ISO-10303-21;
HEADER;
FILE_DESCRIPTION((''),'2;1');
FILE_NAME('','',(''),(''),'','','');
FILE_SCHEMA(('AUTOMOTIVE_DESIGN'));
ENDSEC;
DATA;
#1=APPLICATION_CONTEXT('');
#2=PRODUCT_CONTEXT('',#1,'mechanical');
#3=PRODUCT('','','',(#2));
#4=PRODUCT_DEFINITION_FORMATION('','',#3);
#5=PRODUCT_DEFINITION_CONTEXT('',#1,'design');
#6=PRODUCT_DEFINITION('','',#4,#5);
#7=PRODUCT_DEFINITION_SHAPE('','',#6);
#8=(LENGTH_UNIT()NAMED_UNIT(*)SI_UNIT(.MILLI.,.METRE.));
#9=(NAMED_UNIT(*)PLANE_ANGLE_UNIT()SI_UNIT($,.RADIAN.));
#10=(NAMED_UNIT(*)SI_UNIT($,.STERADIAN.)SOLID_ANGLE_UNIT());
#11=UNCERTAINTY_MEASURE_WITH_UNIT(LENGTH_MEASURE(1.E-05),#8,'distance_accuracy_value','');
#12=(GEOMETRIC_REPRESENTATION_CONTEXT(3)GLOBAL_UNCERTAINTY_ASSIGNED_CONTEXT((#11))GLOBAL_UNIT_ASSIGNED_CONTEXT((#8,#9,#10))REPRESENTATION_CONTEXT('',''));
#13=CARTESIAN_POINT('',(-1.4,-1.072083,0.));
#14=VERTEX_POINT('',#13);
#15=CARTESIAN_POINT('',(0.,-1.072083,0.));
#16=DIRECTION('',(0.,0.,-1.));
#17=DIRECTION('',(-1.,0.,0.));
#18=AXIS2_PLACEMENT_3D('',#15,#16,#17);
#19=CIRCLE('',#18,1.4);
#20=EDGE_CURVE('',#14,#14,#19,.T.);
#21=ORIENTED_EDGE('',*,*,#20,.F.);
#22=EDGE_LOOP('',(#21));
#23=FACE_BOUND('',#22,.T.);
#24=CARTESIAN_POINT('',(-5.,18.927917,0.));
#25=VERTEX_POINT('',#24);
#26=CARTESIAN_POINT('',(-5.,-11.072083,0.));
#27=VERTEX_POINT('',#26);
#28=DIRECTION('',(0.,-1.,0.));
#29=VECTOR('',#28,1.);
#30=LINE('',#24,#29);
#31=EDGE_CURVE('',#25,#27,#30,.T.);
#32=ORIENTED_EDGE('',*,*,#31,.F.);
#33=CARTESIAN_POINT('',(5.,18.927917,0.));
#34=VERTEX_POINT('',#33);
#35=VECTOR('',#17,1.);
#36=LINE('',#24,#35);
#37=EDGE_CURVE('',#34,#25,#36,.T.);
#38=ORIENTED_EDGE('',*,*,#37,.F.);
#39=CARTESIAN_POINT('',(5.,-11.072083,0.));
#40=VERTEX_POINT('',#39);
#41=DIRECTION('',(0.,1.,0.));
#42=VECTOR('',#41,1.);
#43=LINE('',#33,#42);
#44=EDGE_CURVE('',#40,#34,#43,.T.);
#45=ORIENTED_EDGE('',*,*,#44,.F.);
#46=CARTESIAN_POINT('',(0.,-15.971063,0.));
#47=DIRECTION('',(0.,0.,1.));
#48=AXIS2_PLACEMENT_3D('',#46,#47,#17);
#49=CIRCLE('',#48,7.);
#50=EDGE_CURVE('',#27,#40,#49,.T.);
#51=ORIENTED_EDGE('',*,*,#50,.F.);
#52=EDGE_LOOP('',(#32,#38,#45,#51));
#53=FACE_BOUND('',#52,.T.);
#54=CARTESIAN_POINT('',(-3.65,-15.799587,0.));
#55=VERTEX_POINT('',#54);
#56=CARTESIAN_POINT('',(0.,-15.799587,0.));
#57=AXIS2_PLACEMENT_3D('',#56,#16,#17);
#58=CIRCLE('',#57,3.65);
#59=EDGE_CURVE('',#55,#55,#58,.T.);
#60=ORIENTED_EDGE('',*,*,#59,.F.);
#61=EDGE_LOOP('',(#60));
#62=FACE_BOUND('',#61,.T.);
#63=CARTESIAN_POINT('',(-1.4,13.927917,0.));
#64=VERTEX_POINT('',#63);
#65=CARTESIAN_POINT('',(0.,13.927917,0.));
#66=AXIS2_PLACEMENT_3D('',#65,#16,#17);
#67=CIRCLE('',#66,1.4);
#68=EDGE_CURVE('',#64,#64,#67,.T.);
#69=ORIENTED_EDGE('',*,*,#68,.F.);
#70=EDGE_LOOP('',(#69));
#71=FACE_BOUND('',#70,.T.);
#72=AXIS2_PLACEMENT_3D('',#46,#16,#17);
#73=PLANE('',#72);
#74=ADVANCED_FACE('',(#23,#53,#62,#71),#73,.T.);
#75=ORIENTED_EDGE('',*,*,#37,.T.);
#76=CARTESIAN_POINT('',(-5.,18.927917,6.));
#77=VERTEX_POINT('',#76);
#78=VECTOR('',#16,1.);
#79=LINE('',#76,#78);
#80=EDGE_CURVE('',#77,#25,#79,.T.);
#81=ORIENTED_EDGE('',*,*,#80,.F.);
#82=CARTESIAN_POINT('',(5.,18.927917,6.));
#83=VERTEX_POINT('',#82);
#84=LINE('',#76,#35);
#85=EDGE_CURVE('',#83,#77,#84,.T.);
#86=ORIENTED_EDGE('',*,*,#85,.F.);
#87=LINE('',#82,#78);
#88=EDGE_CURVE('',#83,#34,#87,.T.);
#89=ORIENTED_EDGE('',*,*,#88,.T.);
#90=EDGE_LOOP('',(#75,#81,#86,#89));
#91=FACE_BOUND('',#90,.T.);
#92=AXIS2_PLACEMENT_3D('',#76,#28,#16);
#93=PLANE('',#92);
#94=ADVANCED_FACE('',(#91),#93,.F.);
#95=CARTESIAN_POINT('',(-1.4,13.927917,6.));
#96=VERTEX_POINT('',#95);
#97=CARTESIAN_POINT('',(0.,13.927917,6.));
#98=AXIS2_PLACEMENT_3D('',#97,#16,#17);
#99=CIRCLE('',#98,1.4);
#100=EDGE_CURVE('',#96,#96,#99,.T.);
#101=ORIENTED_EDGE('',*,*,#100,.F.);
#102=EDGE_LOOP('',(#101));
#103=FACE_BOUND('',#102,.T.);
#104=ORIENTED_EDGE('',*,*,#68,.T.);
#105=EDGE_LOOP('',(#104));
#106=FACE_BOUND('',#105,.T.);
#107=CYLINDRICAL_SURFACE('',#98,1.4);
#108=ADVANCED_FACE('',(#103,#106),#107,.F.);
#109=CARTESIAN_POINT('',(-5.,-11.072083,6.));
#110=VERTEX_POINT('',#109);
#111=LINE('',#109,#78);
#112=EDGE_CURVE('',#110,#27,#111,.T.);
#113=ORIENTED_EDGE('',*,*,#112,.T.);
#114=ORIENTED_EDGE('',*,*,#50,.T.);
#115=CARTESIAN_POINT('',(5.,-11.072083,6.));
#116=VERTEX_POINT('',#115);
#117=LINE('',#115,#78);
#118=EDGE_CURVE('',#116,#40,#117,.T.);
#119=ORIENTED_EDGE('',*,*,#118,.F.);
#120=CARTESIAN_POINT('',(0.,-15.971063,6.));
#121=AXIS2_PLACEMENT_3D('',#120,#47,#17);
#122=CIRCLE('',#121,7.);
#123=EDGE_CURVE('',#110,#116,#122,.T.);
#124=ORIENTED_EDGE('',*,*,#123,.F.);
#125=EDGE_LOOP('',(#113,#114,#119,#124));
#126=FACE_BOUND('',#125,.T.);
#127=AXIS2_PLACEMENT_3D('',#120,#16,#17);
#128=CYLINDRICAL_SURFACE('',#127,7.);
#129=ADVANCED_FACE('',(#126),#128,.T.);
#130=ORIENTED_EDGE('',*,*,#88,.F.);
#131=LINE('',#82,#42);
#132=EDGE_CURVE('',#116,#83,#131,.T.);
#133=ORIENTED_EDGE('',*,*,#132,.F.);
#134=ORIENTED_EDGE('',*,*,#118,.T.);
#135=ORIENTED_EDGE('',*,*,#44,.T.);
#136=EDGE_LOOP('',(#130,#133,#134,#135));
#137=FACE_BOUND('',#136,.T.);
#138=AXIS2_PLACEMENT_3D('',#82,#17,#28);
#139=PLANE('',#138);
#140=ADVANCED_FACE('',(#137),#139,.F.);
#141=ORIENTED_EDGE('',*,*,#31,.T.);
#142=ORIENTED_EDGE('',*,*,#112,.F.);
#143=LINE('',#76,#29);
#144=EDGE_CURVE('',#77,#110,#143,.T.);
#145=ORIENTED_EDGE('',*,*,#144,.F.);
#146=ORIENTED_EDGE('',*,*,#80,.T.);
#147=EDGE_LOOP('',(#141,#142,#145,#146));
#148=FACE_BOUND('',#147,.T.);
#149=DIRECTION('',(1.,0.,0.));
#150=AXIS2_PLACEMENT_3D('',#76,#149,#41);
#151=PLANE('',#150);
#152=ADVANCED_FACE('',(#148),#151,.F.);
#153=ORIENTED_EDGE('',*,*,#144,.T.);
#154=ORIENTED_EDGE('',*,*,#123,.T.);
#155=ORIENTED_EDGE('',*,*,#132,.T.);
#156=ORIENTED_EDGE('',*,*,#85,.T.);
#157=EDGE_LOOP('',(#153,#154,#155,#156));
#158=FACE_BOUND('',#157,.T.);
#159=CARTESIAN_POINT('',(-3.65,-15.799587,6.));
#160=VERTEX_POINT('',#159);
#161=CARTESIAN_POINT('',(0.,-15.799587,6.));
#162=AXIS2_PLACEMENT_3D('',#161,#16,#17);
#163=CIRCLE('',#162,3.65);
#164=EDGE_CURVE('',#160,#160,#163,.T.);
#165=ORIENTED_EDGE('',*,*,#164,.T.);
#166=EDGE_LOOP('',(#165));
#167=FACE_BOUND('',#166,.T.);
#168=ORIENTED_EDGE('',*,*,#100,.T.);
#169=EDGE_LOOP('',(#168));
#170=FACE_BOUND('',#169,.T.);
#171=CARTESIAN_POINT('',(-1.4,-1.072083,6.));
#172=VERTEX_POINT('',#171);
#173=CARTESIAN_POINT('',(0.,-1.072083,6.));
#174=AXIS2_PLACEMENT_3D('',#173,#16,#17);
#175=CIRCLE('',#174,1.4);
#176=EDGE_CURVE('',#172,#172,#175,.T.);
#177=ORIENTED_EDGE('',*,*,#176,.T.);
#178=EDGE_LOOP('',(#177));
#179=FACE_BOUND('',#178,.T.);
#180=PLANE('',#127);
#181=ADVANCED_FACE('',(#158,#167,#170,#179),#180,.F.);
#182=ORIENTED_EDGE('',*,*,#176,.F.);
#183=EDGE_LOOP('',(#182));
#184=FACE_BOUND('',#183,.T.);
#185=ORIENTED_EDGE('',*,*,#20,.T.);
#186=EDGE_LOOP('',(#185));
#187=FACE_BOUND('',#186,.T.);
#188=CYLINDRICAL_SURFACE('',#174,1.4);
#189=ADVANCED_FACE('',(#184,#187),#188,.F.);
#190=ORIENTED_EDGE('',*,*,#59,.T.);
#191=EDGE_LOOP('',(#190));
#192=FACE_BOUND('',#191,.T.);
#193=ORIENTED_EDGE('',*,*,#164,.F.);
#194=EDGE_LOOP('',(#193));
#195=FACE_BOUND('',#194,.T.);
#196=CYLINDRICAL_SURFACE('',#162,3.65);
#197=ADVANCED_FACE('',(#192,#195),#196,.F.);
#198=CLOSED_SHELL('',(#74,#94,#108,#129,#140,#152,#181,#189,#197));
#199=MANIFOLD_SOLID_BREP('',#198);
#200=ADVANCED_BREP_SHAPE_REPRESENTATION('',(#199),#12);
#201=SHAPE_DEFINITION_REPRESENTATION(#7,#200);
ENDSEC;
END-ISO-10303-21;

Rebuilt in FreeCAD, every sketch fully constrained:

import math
import FreeCAD as App
import Part
import Sketcher
Q = App.Units.Quantity

doc = App.newDocument("Part")
body = doc.addObject("PartDesign::Body", "Body")

sketch1 = doc.addObject("Sketcher::SketchObject", "Sketch")
body.addObject(sketch1)
sketch1.AttachmentSupport = (doc.XY_Plane, [""])
sketch1.MapMode = "FlatFace"
sketch1.addGeometry([
    Part.LineSegment(App.Vector(5, 18.927917, 0), App.Vector(-5, 18.927917, 0)),
    Part.LineSegment(App.Vector(-5, 18.927917, 0), App.Vector(-5, -11.072083, 0)),
    Part.ArcOfCircle(Part.Circle(App.Vector(0, -15.971063, 0), App.Vector(0, 0, 1), 7), math.radians(135.584691), math.radians(404.415309)),
    Part.LineSegment(App.Vector(5, -11.072083, 0), App.Vector(5, 18.927917, 0)),
], False)
sketch1.addConstraint([
    Sketcher.Constraint("Coincident", 0, 2, 1, 1),
    Sketcher.Constraint("Coincident", 1, 2, 2, 1),
    Sketcher.Constraint("Coincident", 2, 2, 3, 1),
    Sketcher.Constraint("Coincident", 3, 2, 0, 1),
    Sketcher.Constraint("Horizontal", 0),
    Sketcher.Constraint("Vertical", 1),
    Sketcher.Constraint("Vertical", 3),
    Sketcher.Constraint("Symmetric", 1, 2, 2, 2, -2),
    Sketcher.Constraint("Radius", 2, Q("7 mm")),
    Sketcher.Constraint("DistanceX", 0, 2, 0, 1, Q("10 mm")),
    Sketcher.Constraint("DistanceY", 1, 2, 1, 1, Q("30 mm")),
    Sketcher.Constraint("DistanceY", 2, 3, -1, 1, Q("15.971063 mm")),
])
pad1 = doc.addObject("PartDesign::Pad", "Pad")
body.addObject(pad1)
pad1.Profile = sketch1
pad1.Length = 6

sketch2 = doc.addObject("Sketcher::SketchObject", "Sketch001")
body.addObject(sketch2)
sketch2.AttachmentSupport = (doc.XY_Plane, [""])
sketch2.MapMode = "FlatFace"
sketch2.addGeometry([
    Part.Circle(App.Vector(0, -15.799587, 0), App.Vector(0, 0, 1), 3.65),
    Part.Circle(App.Vector(0, -1.072083, 0), App.Vector(0, 0, 1), 1.4),
    Part.Circle(App.Vector(0, 13.927917, 0), App.Vector(0, 0, 1), 1.4),
], False)
sketch2.addConstraint([
    Sketcher.Constraint("Equal", 1, 2),
    Sketcher.Constraint("PointOnObject", 0, 3, -2),
    Sketcher.Constraint("PointOnObject", 1, 3, -2),
    Sketcher.Constraint("PointOnObject", 2, 3, -2),
    Sketcher.Constraint("Diameter", 0, Q("7.3 mm")),
    Sketcher.Constraint("Diameter", 1, Q("2.8 mm")),
    Sketcher.Constraint("DistanceY", 1, 3, 2, 3, Q("15 mm")),
    Sketcher.Constraint("DistanceY", 0, 3, -1, 1, Q("15.799587 mm")),
    Sketcher.Constraint("DistanceY", 1, 3, -1, 1, Q("1.072083 mm")),
])
pocket1 = doc.addObject("PartDesign::Pocket", "Pocket")
body.addObject(pocket1)
pocket1.Profile = sketch2
pocket1.Length = 6
pocket1.Reversed = True

doc.recompute()
